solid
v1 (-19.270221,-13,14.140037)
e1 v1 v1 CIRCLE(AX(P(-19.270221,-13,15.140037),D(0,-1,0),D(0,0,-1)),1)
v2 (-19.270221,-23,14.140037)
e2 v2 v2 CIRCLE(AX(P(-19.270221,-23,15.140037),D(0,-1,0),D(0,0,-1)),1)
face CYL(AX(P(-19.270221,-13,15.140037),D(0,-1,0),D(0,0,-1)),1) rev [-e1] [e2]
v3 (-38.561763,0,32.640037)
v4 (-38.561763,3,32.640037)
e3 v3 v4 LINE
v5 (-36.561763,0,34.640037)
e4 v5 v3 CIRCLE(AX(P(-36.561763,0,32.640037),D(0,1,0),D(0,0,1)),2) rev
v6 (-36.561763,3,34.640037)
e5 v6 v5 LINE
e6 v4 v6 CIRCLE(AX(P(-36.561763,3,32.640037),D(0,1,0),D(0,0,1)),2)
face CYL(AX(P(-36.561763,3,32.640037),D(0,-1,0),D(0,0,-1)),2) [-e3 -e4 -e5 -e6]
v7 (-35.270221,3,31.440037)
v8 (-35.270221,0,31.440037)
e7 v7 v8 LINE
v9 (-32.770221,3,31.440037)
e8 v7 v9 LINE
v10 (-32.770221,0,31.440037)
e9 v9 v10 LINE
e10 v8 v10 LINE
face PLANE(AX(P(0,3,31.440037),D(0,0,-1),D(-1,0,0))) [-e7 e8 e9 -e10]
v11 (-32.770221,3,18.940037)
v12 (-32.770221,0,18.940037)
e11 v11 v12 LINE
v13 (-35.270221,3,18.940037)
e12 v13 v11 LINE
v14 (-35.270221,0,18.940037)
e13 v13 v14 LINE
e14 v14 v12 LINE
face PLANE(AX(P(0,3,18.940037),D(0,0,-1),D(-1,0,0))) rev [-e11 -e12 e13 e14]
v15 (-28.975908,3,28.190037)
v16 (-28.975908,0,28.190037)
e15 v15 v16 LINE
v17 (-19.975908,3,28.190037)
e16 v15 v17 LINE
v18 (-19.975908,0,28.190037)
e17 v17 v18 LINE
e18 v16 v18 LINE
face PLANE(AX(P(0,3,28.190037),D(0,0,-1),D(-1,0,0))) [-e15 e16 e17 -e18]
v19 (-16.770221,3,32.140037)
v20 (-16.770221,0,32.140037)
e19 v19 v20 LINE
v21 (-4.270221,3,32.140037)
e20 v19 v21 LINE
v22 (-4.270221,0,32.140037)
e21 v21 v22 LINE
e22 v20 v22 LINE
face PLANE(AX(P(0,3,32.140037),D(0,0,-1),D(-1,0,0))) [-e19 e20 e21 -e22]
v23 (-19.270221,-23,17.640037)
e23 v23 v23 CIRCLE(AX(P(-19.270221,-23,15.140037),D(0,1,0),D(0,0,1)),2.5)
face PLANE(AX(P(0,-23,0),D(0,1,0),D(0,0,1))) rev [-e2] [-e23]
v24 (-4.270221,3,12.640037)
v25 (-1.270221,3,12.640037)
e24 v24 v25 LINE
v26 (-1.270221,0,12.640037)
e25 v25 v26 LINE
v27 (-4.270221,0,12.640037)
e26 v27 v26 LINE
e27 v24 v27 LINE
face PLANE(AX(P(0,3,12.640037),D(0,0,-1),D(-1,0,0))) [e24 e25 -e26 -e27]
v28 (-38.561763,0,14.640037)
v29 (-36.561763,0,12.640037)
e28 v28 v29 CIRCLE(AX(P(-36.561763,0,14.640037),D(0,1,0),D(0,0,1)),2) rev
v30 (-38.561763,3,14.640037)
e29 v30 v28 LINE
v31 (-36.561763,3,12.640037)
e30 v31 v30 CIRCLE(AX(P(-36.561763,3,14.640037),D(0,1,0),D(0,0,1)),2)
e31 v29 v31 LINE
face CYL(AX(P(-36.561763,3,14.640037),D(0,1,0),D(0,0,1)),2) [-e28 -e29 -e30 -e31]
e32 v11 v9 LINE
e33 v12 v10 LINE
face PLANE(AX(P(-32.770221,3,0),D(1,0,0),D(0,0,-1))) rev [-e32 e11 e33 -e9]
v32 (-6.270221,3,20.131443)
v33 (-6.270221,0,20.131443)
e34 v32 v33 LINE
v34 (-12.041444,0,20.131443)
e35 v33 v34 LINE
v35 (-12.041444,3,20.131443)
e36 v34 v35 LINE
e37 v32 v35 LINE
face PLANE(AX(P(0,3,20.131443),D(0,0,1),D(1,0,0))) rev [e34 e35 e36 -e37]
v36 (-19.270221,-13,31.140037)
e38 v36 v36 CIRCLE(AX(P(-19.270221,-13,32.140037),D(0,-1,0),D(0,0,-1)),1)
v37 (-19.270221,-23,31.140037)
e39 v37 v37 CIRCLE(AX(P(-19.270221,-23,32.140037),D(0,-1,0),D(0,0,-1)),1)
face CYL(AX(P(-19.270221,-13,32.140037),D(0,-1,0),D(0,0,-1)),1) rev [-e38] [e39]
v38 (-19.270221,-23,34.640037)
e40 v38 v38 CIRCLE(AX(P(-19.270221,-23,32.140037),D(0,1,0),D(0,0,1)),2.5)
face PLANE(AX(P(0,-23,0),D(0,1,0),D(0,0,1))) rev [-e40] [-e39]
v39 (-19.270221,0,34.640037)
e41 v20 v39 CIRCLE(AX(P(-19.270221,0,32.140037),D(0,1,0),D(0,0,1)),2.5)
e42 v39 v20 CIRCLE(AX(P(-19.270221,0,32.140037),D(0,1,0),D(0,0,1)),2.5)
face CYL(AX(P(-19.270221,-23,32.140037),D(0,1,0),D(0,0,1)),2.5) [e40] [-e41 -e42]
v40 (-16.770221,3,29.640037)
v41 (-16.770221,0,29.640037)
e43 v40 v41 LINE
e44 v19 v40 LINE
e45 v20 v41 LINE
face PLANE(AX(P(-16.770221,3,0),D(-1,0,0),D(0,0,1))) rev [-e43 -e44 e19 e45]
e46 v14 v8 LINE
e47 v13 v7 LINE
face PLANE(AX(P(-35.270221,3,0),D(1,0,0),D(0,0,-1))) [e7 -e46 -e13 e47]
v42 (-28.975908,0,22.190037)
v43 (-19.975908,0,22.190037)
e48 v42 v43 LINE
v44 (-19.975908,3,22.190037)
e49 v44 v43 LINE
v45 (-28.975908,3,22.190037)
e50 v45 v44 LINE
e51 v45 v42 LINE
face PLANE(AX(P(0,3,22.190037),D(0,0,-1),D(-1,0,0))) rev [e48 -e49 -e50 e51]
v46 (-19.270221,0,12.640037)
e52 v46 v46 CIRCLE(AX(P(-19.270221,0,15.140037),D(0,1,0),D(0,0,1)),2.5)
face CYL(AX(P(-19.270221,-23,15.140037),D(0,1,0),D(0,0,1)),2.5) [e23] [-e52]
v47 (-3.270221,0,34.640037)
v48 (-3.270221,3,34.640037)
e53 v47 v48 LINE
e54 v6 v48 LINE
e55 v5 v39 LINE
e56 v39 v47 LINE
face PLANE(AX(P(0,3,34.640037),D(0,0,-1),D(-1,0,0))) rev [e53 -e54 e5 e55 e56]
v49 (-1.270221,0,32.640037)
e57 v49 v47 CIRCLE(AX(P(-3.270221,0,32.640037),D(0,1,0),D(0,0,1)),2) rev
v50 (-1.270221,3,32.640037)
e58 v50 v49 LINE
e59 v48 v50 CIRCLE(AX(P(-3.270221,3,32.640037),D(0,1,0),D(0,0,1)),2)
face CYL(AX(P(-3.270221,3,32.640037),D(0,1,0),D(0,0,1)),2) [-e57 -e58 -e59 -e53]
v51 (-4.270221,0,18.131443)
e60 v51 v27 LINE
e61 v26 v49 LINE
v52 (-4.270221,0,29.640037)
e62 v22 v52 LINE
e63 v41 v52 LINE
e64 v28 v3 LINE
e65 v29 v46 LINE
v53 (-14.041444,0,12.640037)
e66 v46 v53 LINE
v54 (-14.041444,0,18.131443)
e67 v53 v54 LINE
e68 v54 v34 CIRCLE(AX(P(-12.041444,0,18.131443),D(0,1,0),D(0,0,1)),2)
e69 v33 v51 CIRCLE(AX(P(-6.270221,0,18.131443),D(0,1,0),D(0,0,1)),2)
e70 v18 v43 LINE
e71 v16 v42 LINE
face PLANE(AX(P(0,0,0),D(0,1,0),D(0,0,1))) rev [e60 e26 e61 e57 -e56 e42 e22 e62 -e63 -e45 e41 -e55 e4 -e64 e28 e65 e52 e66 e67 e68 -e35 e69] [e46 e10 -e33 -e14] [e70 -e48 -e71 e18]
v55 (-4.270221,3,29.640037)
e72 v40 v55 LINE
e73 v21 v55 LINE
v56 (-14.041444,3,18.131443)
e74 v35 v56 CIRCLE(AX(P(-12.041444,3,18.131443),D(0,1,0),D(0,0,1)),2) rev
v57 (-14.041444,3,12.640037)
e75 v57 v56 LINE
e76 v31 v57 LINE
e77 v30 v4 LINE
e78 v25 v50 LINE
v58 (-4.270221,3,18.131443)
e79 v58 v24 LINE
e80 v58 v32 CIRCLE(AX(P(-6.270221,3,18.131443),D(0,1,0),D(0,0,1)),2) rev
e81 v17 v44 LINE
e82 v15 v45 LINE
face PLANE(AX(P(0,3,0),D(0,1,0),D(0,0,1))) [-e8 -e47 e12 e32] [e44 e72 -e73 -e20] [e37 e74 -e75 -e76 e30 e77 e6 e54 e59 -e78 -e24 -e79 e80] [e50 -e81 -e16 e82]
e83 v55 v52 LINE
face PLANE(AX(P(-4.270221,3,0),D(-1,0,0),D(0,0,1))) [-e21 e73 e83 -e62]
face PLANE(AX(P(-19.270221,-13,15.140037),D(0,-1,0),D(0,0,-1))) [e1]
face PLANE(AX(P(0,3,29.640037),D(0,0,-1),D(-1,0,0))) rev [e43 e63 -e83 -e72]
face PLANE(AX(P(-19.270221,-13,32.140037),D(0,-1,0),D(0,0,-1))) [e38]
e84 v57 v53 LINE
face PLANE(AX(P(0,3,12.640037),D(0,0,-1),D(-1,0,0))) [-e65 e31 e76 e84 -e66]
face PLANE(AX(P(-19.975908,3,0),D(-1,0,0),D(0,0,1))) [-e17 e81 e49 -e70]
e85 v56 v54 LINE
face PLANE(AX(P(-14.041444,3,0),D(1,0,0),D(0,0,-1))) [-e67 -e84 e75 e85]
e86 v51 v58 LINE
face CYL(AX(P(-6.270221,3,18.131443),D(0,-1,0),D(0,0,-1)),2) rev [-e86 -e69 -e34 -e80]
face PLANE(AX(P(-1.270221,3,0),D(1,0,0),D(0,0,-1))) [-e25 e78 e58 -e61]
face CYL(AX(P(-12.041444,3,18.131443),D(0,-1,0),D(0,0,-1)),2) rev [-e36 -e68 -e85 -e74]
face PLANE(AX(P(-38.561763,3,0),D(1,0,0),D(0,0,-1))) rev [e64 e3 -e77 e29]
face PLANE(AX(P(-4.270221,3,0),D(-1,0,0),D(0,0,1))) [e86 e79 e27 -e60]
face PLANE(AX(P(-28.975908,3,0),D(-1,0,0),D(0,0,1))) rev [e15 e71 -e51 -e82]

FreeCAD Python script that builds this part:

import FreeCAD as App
import Part
import Sketcher


def edges_at(feature, points):
    """Names of the edges that pass closest to the given points."""
    edges = feature.Shape.Edges
    near = lambda p: min(range(len(edges)), key=lambda i: edges[i].distToShape(Part.Vertex(*p))[0])
    return sorted({f"Edge{near(p) + 1}" for p in points})

doc = App.newDocument("Part")
body = doc.addObject("PartDesign::Body", "Body")

sketch1 = body.newObject("Sketcher::SketchObject", "Sketch")
sketch1.AttachmentSupport = (doc.getObject("XZ_Plane"), [""])
sketch1.MapMode = "FlatFace"
sketch1.addGeometry([
    Part.LineSegment(App.Vector(-14, 20.1, 0), App.Vector(-14, 12.6, 0)),
    Part.LineSegment(App.Vector(-14, 12.6, 0), App.Vector(-38.6, 12.6, 0)),
    Part.LineSegment(App.Vector(-38.6, 12.6, 0), App.Vector(-38.6, 34.6, 0)),
    Part.LineSegment(App.Vector(-38.6, 34.6, 0), App.Vector(-1.3, 34.6, 0)),
    Part.LineSegment(App.Vector(-1.3, 34.6, 0), App.Vector(-1.3, 12.6, 0)),
    Part.LineSegment(App.Vector(-1.3, 12.6, 0), App.Vector(-4.3, 12.6, 0)),
    Part.LineSegment(App.Vector(-4.3, 12.6, 0), App.Vector(-4.3, 20.1, 0)),
    Part.LineSegment(App.Vector(-4.3, 20.1, 0), App.Vector(-14, 20.1, 0)),
    Part.LineSegment(App.Vector(-4.3, 32.1, 0), App.Vector(-16.8, 32.1, 0)),
    Part.LineSegment(App.Vector(-16.8, 32.1, 0), App.Vector(-16.8, 29.6, 0)),
    Part.LineSegment(App.Vector(-16.8, 29.6, 0), App.Vector(-4.3, 29.6, 0)),
    Part.LineSegment(App.Vector(-4.3, 29.6, 0), App.Vector(-4.3, 32.1, 0)),
    Part.LineSegment(App.Vector(-32.8, 31.4, 0), App.Vector(-35.3, 31.4, 0)),
    Part.LineSegment(App.Vector(-35.3, 31.4, 0), App.Vector(-35.3, 18.9, 0)),
    Part.LineSegment(App.Vector(-35.3, 18.9, 0), App.Vector(-32.8, 18.9, 0)),
    Part.LineSegment(App.Vector(-32.8, 18.9, 0), App.Vector(-32.8, 31.4, 0)),
    Part.LineSegment(App.Vector(-20, 28.2, 0), App.Vector(-29, 28.2, 0)),
    Part.LineSegment(App.Vector(-29, 28.2, 0), App.Vector(-29, 22.2, 0)),
    Part.LineSegment(App.Vector(-29, 22.2, 0), App.Vector(-20, 22.2, 0)),
    Part.LineSegment(App.Vector(-20, 22.2, 0), App.Vector(-20, 28.2, 0)),
], False)
sketch1.addConstraint([
    Sketcher.Constraint("Coincident", 0, 2, 1, 1),
    Sketcher.Constraint("Coincident", 1, 2, 2, 1),
    Sketcher.Constraint("Coincident", 2, 2, 3, 1),
    Sketcher.Constraint("Coincident", 3, 2, 4, 1),
    Sketcher.Constraint("Coincident", 4, 2, 5, 1),
    Sketcher.Constraint("Coincident", 5, 2, 6, 1),
    Sketcher.Constraint("Coincident", 6, 2, 7, 1),
    Sketcher.Constraint("Coincident", 7, 2, 0, 1),
    Sketcher.Constraint("Coincident", 8, 2, 9, 1),
    Sketcher.Constraint("Coincident", 9, 2, 10, 1),
    Sketcher.Constraint("Coincident", 10, 2, 11, 1),
    Sketcher.Constraint("Coincident", 11, 2, 8, 1),
    Sketcher.Constraint("Coincident", 12, 2, 13, 1),
    Sketcher.Constraint("Coincident", 13, 2, 14, 1),
    Sketcher.Constraint("Coincident", 14, 2, 15, 1),
    Sketcher.Constraint("Coincident", 15, 2, 12, 1),
    Sketcher.Constraint("Coincident", 16, 2, 17, 1),
    Sketcher.Constraint("Coincident", 17, 2, 18, 1),
    Sketcher.Constraint("Coincident", 18, 2, 19, 1),
    Sketcher.Constraint("Coincident", 19, 2, 16, 1),
    Sketcher.Constraint("Vertical", 0),
    Sketcher.Constraint("Horizontal", 1),
    Sketcher.Constraint("Vertical", 2),
    Sketcher.Constraint("Horizontal", 3),
    Sketcher.Constraint("Vertical", 4),
    Sketcher.Constraint("Horizontal", 5),
    Sketcher.Constraint("Vertical", 6),
    Sketcher.Constraint("Horizontal", 7),
    Sketcher.Constraint("Horizontal", 8),
    Sketcher.Constraint("Vertical", 9),
    Sketcher.Constraint("Horizontal", 10),
    Sketcher.Constraint("Vertical", 11),
    Sketcher.Constraint("Horizontal", 12),
    Sketcher.Constraint("Vertical", 13),
    Sketcher.Constraint("Horizontal", 14),
    Sketcher.Constraint("Vertical", 15),
    Sketcher.Constraint("Horizontal", 16),
    Sketcher.Constraint("Vertical", 17),
    Sketcher.Constraint("Horizontal", 18),
    Sketcher.Constraint("Vertical", 19),
    Sketcher.Constraint("Horizontal", 1, 2, 4, 2),
    Sketcher.Constraint("Vertical", 6, 2, 10, 2),
    Sketcher.Constraint("Equal", 14, 9),
    Sketcher.Constraint("Equal", 10, 13),
    Sketcher.Constraint("DistanceX", 5, 2, 5, 1, 3.0),
    Sketcher.Constraint("DistanceX", 16, 2, 16, 1, 9.0),
    Sketcher.Constraint("DistanceY", 2, 1, 2, 2, 22.0),
    Sketcher.Constraint("DistanceY", 17, 2, 17, 1, 6.0),
    Sketcher.Constraint("DistanceX", 8, 2, 8, 1, 12.5),
    Sketcher.Constraint("DistanceX", 12, 2, 12, 1, 2.5),
    Sketcher.Constraint("DistanceY", 9, 2, 3, 2, 5.0),
    Sketcher.Constraint("DistanceX", 15, 2, 8, 2, 16.0),
    Sketcher.Constraint("DistanceY", 12, 2, 2, 2, 3.2),
    Sketcher.Constraint("DistanceY", 16, 2, 15, 2, 3.25),
    Sketcher.Constraint("DistanceX", 1, 2, 1, 1, 24.520319),
    Sketcher.Constraint("DistanceX", 3, 1, 3, 2, 37.291543),
    Sketcher.Constraint("DistanceY", 0, 2, 0, 1, 7.491405),
    Sketcher.Constraint("DistanceX", 3, 2, -1, 1, 1.270221),
    Sketcher.Constraint("DistanceY", -1, 1, 0, 2, 12.640037),
    Sketcher.Constraint("DistanceX", 16, 2, -1, 1, 28.975908),
])
pad1 = body.newObject("PartDesign::Pad", "Pad")
pad1.Profile = sketch1
pad1.Length = 3
pad1.Reversed = True
doc.recompute()

fillet = body.newObject("PartDesign::Fillet", "Fillet")
fillet.Base = (pad1, edges_at(pad1, [
    (-14.041, 1.5, 20.131),
    (-4.27, 1.5, 20.131),
    (-1.27, 1.5, 34.64),
    (-38.562, 1.5, 34.64),
    (-38.562, 1.5, 12.64),
]))
fillet.Radius = 2

sketch2 = body.newObject("Sketcher::SketchObject", "Sketch001")
sketch2.AttachmentSupport = (doc.getObject("XZ_Plane"), [""])
sketch2.MapMode = "FlatFace"
sketch2.addGeometry([
    Part.Circle(App.Vector(-19.3, 32.1, 0), App.Vector(0, 0, 1), 2.5),
    Part.Circle(App.Vector(-19.3, 15.1, 0), App.Vector(0, 0, 1), 2.5),
], False)
sketch2.addConstraint([
    Sketcher.Constraint("Equal", 0, 1),
    Sketcher.Constraint("Vertical", 0, 3, 1, 3),
    Sketcher.Constraint("Diameter", 0, 5.0),
    Sketcher.Constraint("DistanceY", 1, 3, 0, 3, 17.0),
    Sketcher.Constraint("DistanceX", 0, 3, -1, 1, 19.270221),
    Sketcher.Constraint("DistanceY", -1, 1, 0, 3, 32.140037),
])
pad2 = body.newObject("PartDesign::Pad", "Pad001")
pad2.Profile = sketch2
pad2.Length = 23

sketch3 = body.newObject("Sketcher::SketchObject", "Sketch002")
sketch3.AttachmentSupport = (doc.getObject("XZ_Plane"), [""])
sketch3.MapMode = "FlatFace"
sketch3.AttachmentOffset = App.Placement(App.Vector(0, 0, 23), App.Rotation())
sketch3.addGeometry([
    Part.Circle(App.Vector(-19.3, 32.1, 0), App.Vector(0, 0, 1), 1),
    Part.Circle(App.Vector(-19.3, 15.1, 0), App.Vector(0, 0, 1), 1),
], False)
sketch3.addConstraint([
    Sketcher.Constraint("Equal", 0, 1),
    Sketcher.Constraint("Vertical", 0, 3, 1, 3),
    Sketcher.Constraint("Diameter", 0, 2.0),
    Sketcher.Constraint("DistanceY", 1, 3, 0, 3, 17.0),
    Sketcher.Constraint("DistanceX", 0, 3, -1, 1, 19.270221),
    Sketcher.Constraint("DistanceY", -1, 1, 0, 3, 32.140037),
])
pocket1 = body.newObject("PartDesign::Pocket", "Pocket")
pocket1.Profile = sketch3
pocket1.Length = 10

doc.recompute()
